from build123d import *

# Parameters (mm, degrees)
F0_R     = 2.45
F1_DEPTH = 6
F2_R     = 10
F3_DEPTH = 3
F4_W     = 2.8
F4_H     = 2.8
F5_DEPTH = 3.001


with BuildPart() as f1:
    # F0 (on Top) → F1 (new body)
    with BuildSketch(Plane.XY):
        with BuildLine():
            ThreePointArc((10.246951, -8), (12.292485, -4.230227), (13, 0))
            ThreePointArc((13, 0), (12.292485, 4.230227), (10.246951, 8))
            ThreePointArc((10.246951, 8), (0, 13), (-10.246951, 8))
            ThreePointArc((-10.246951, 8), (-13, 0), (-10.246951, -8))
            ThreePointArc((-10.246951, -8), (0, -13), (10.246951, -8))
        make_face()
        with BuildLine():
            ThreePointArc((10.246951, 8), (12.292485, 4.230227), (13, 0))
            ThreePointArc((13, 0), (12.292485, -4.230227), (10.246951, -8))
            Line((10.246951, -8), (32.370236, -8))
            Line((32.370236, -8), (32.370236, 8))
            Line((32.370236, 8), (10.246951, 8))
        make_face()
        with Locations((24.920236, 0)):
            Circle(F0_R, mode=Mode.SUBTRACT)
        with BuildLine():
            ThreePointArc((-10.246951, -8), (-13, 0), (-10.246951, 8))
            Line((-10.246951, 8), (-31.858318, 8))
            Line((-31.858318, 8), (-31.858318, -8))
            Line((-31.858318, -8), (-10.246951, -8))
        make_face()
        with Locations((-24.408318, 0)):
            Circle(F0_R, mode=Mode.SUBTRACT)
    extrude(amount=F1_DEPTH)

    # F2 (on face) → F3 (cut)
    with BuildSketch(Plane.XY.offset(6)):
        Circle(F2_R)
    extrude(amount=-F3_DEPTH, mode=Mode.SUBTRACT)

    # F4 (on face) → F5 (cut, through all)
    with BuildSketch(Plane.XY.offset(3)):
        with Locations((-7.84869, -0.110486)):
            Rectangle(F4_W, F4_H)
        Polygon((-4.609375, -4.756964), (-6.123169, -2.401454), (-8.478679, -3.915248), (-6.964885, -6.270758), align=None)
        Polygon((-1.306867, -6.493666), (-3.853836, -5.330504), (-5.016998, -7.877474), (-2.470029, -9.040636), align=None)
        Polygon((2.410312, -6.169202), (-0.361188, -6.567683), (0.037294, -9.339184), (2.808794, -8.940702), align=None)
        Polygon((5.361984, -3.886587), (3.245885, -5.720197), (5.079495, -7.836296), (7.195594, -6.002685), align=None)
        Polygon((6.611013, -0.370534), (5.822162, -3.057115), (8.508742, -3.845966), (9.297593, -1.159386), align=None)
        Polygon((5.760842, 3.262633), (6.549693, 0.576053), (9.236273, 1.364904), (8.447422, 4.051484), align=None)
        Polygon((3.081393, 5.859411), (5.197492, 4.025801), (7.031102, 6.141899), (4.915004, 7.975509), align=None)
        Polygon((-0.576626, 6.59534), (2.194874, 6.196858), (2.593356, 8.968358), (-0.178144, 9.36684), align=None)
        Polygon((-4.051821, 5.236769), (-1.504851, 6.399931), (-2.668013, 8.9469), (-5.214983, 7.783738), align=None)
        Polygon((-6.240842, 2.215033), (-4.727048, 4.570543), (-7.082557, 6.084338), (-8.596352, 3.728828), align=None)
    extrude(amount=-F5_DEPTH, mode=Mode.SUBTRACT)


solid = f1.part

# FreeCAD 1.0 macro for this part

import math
import FreeCAD as App
import Part
import Sketcher
from FreeCAD import Vector
Q = App.Units.Quantity

doc = App.newDocument("Part")
params = doc.addObject("Spreadsheet::Sheet", "Params")
for row, (alias, value) in enumerate([
    ("sketch1_radius", "13 mm"),
    ("sketch1_diameter", "4.9 mm"),
    ("sketch1_height", "16 mm"),
    ("pad1_length", "6 mm"),
    ("sketch2_diameter", "20 mm"),
    ("pocket1_length", "3 mm"),
    ("sketch3_width", "2.8 mm"),
    ("sketch3_length", "2.8 mm"),
], start=1):
    params.set(f"A{row}", alias)
    params.set(f"B{row}", "=" + value)
    params.setAlias(f"B{row}", alias)

body = doc.addObject("PartDesign::Body", "Body")

sketch1 = body.newObject("Sketcher::SketchObject", "Sketch")
sketch1.AttachmentSupport = (doc.getObject("XY_Plane"), [""])
sketch1.MapMode = "FlatFace"
sketch1.addGeometry(Part.ArcOfCircle(Part.Circle(Vector(0, 0, 0), Vector(0, 0, 1), 13), math.radians(38), math.radians(142)), False)
sketch1.addGeometry(Part.LineSegment(Vector(-10.2, 8, 0), Vector(-31.9, 8, 0)), False)
sketch1.addGeometry(Part.LineSegment(Vector(-31.9, 8, 0), Vector(-31.9, -8, 0)), False)
sketch1.addGeometry(Part.LineSegment(Vector(-31.9, -8, 0), Vector(-10.2, -8, 0)), False)
sketch1.addGeometry(Part.ArcOfCircle(Part.Circle(Vector(0, 0, 0), Vector(0, 0, 1), 13), math.radians(-142), math.radians(-38)), False)
sketch1.addGeometry(Part.LineSegment(Vector(10.2, -8, 0), Vector(32.4, -8, 0)), False)
sketch1.addGeometry(Part.LineSegment(Vector(32.4, -8, 0), Vector(32.4, 8, 0)), False)
sketch1.addGeometry(Part.LineSegment(Vector(32.4, 8, 0), Vector(10.2, 8, 0)), False)
sketch1.addGeometry(Part.Circle(Vector(-24.4, 0, 0), Vector(0, 0, 1), 2.5), False)
sketch1.addGeometry(Part.Circle(Vector(24.9, 0, 0), Vector(0, 0, 1), 2.5), False)
sketch1.addConstraint(Sketcher.Constraint("Coincident", 0, 2, 1, 1))
sketch1.addConstraint(Sketcher.Constraint("Coincident", 1, 2, 2, 1))
sketch1.addConstraint(Sketcher.Constraint("Coincident", 2, 2, 3, 1))
sketch1.addConstraint(Sketcher.Constraint("Coincident", 3, 2, 4, 1))
sketch1.addConstraint(Sketcher.Constraint("Coincident", 4, 2, 5, 1))
sketch1.addConstraint(Sketcher.Constraint("Coincident", 5, 2, 6, 1))
sketch1.addConstraint(Sketcher.Constraint("Coincident", 6, 2, 7, 1))
sketch1.addConstraint(Sketcher.Constraint("Coincident", 7, 2, 0, 1))
sketch1.addConstraint(Sketcher.Constraint("Horizontal", 1))
sketch1.addConstraint(Sketcher.Constraint("Vertical", 2))
sketch1.addConstraint(Sketcher.Constraint("Horizontal", 3))
sketch1.addConstraint(Sketcher.Constraint("Horizontal", 5))
sketch1.addConstraint(Sketcher.Constraint("Vertical", 6))
sketch1.addConstraint(Sketcher.Constraint("Horizontal", 7))
sketch1.addConstraint(Sketcher.Constraint("Coincident", 0, 3, -1, 1))
sketch1.addConstraint(Sketcher.Constraint("Coincident", 4, 3, -1, 1))
sketch1.addConstraint(Sketcher.Constraint("Equal", 0, 4))
sketch1.addConstraint(Sketcher.Constraint("Equal", 8, 9))
sketch1.addConstraint(Sketcher.Constraint("PointOnObject", 8, 3, -1))
sketch1.addConstraint(Sketcher.Constraint("PointOnObject", 9, 3, -1))
sketch1.addConstraint(Sketcher.Constraint("Horizontal", 3, 2, 4, 2))
sketch1.addConstraint(Sketcher.Constraint("Horizontal", 1, 2, 6, 2))
sketch1.addConstraint(Sketcher.Constraint("Vertical", 0, 2, 3, 2))
sketch1.addConstraint(Sketcher.Constraint("Radius", 0, Q("13 mm")))
sketch1.addConstraint(Sketcher.Constraint("Diameter", 8, Q("4.9 mm")))
sketch1.addConstraint(Sketcher.Constraint("DistanceY", 2, 2, 2, 1, Q("16 mm")))
sketch1.addConstraint(Sketcher.Constraint("DistanceX", 1, 2, 8, 3, Q("7.45 mm")))
sketch1.addConstraint(Sketcher.Constraint("DistanceX", 9, 3, 5, 2, Q("7.45 mm")))
sketch1.addConstraint(Sketcher.Constraint("DistanceX", 1, 2, 1, 1, Q("21.611367 mm")))
sketch1.addConstraint(Sketcher.Constraint("DistanceX", 5, 1, 5, 2, Q("22.123285 mm")))
sketch1.setExpression("Constraints[23]", "Params.sketch1_radius")
sketch1.setExpression("Constraints[24]", "Params.sketch1_diameter")
sketch1.setExpression("Constraints[25]", "Params.sketch1_height")
pad1 = body.newObject("PartDesign::Pad", "Pad")
pad1.Profile = sketch1
pad1.setExpression("Length", "Params.pad1_length")

sketch2 = body.newObject("Sketcher::SketchObject", "Sketch001")
sketch2.AttachmentSupport = (doc.getObject("XY_Plane"), [""])
sketch2.MapMode = "FlatFace"
sketch2.AttachmentOffset = App.Placement(Vector(0, 0, 6), App.Rotation())
sketch2.addGeometry(Part.Circle(Vector(0, 0, 0), Vector(0, 0, 1), 10), False)
sketch2.addConstraint(Sketcher.Constraint("Coincident", 0, 3, -1, 1))
sketch2.addConstraint(Sketcher.Constraint("Diameter", 0, Q("20 mm")))
sketch2.setExpression("Constraints[1]", "Params.sketch2_diameter")
pocket1 = body.newObject("PartDesign::Pocket", "Pocket")
pocket1.Profile = sketch2
pocket1.setExpression("Length", "Params.pocket1_length")

sketch3 = body.newObject("Sketcher::SketchObject", "Sketch002")
sketch3.AttachmentSupport = (doc.getObject("XY_Plane"), [""])
sketch3.MapMode = "FlatFace"
sketch3.AttachmentOffset = App.Placement(Vector(0, 0, 3), App.Rotation())
sketch3.addGeometry(Part.LineSegment(Vector(-9.2, 1.3, 0), Vector(-9.2, -1.5, 0)), False)
sketch3.addGeometry(Part.LineSegment(Vector(-9.2, -1.5, 0), Vector(-6.4, -1.5, 0)), False)
sketch3.addGeometry(Part.LineSegment(Vector(-6.4, -1.5, 0), Vector(-6.4, 1.3, 0)), False)
sketch3.addGeometry(Part.LineSegment(Vector(-6.4, 1.3, 0), Vector(-9.2, 1.3, 0)), False)
sketch3.addGeometry(Part.LineSegment(Vector(-4.6, -4.8, 0), Vector(-6.1, -2.4, 0)), False)
sketch3.addGeometry(Part.LineSegment(Vector(-6.1, -2.4, 0), Vector(-8.5, -3.9, 0)), False)
sketch3.addGeometry(Part.LineSegment(Vector(-8.5, -3.9, 0), Vector(-7, -6.3, 0)), False)
sketch3.addGeometry(Part.LineSegment(Vector(-7, -6.3, 0), Vector(-4.6, -4.8, 0)), False)
sketch3.addGeometry(Part.LineSegment(Vector(-1.3, -6.5, 0), Vector(-3.9, -5.3, 0)), False)
sketch3.addGeometry(Part.LineSegment(Vector(-3.9, -5.3, 0), Vector(-5, -7.9, 0)), False)
sketch3.addGeometry(Part.LineSegment(Vector(-5, -7.9, 0), Vector(-2.5, -9, 0)), False)
sketch3.addGeometry(Part.LineSegment(Vector(-2.5, -9, 0), Vector(-1.3, -6.5, 0)), False)
sketch3.addGeometry(Part.LineSegment(Vector(2.4, -6.2, 0), Vector(-0.4, -6.6, 0)), False)
sketch3.addGeometry(Part.LineSegment(Vector(-0.4, -6.6, 0), Vector(0, -9.3, 0)), False)
sketch3.addGeometry(Part.LineSegment(Vector(0, -9.3, 0), Vector(2.8, -8.9, 0)), False)
sketch3.addGeometry(Part.LineSegment(Vector(2.8, -8.9, 0), Vector(2.4, -6.2, 0)), False)
sketch3.addGeometry(Part.LineSegment(Vector(5.4, -3.9, 0), Vector(3.2, -5.7, 0)), False)
sketch3.addGeometry(Part.LineSegment(Vector(3.2, -5.7, 0), Vector(5.1, -7.8, 0)), False)
sketch3.addGeometry(Part.LineSegment(Vector(5.1, -7.8, 0), Vector(7.2, -6, 0)), False)
sketch3.addGeometry(Part.LineSegment(Vector(7.2, -6, 0), Vector(5.4, -3.9, 0)), False)
sketch3.addGeometry(Part.LineSegment(Vector(6.6, -0.4, 0), Vector(5.8, -3.1, 0)), False)
sketch3.addGeometry(Part.LineSegment(Vector(5.8, -3.1, 0), Vector(8.5, -3.8, 0)), False)
sketch3.addGeometry(Part.LineSegment(Vector(8.5, -3.8, 0), Vector(9.3, -1.2, 0)), False)
sketch3.addGeometry(Part.LineSegment(Vector(9.3, -1.2, 0), Vector(6.6, -0.4, 0)), False)
sketch3.addGeometry(Part.LineSegment(Vector(5.8, 3.3, 0), Vector(6.5, 0.6, 0)), False)
sketch3.addGeometry(Part.LineSegment(Vector(6.5, 0.6, 0), Vector(9.2, 1.4, 0)), False)
sketch3.addGeometry(Part.LineSegment(Vector(9.2, 1.4, 0), Vector(8.4, 4.1, 0)), False)
sketch3.addGeometry(Part.LineSegment(Vector(8.4, 4.1, 0), Vector(5.8, 3.3, 0)), False)
sketch3.addGeometry(Part.LineSegment(Vector(3.1, 5.9, 0), Vector(5.2, 4, 0)), False)
sketch3.addGeometry(Part.LineSegment(Vector(5.2, 4, 0), Vector(7, 6.1, 0)), False)
sketch3.addGeometry(Part.LineSegment(Vector(7, 6.1, 0), Vector(4.9, 8, 0)), False)
sketch3.addGeometry(Part.LineSegment(Vector(4.9, 8, 0), Vector(3.1, 5.9, 0)), False)
sketch3.addGeometry(Part.LineSegment(Vector(-0.6, 6.6, 0), Vector(2.2, 6.2, 0)), False)
sketch3.addGeometry(Part.LineSegment(Vector(2.2, 6.2, 0), Vector(2.6, 9, 0)), False)
sketch3.addGeometry(Part.LineSegment(Vector(2.6, 9, 0), Vector(-0.2, 9.4, 0)), False)
sketch3.addGeometry(Part.LineSegment(Vector(-0.2, 9.4, 0), Vector(-0.6, 6.6, 0)), False)
sketch3.addGeometry(Part.LineSegment(Vector(-4.1, 5.2, 0), Vector(-1.5, 6.4, 0)), False)
sketch3.addGeometry(Part.LineSegment(Vector(-1.5, 6.4, 0), Vector(-2.7, 8.9, 0)), False)
sketch3.addGeometry(Part.LineSegment(Vector(-2.7, 8.9, 0), Vector(-5.2, 7.8, 0)), False)
sketch3.addGeometry(Part.LineSegment(Vector(-5.2, 7.8, 0), Vector(-4.1, 5.2, 0)), False)
sketch3.addGeometry(Part.LineSegment(Vector(-6.2, 2.2, 0), Vector(-4.7, 4.6, 0)), False)
sketch3.addGeometry(Part.LineSegment(Vector(-4.7, 4.6, 0), Vector(-7.1, 6.1, 0)), False)
sketch3.addGeometry(Part.LineSegment(Vector(-7.1, 6.1, 0), Vector(-8.6, 3.7, 0)), False)
sketch3.addGeometry(Part.LineSegment(Vector(-8.6, 3.7, 0), Vector(-6.2, 2.2, 0)), False)
sketch3.addConstraint(Sketcher.Constraint("Coincident", 0, 2, 1, 1))
sketch3.addConstraint(Sketcher.Constraint("Coincident", 1, 2, 2, 1))
sketch3.addConstraint(Sketcher.Constraint("Coincident", 2, 2, 3, 1))
sketch3.addConstraint(Sketcher.Constraint("Coincident", 3, 2, 0, 1))
sketch3.addConstraint(Sketcher.Constraint("Coincident", 4, 2, 5, 1))
sketch3.addConstraint(Sketcher.Constraint("Coincident", 5, 2, 6, 1))
sketch3.addConstraint(Sketcher.Constraint("Coincident", 6, 2, 7, 1))
sketch3.addConstraint(Sketcher.Constraint("Coincident", 7, 2, 4, 1))
sketch3.addConstraint(Sketcher.Constraint("Coincident", 8, 2, 9, 1))
sketch3.addConstraint(Sketcher.Constraint("Coincident", 9, 2, 10, 1))
sketch3.addConstraint(Sketcher.Constraint("Coincident", 10, 2, 11, 1))
sketch3.addConstraint(Sketcher.Constraint("Coincident", 11, 2, 8, 1))
sketch3.addConstraint(Sketcher.Constraint("Coincident", 12, 2, 13, 1))
sketch3.addConstraint(Sketcher.Constraint("Coincident", 13, 2, 14, 1))
sketch3.addConstraint(Sketcher.Constraint("Coincident", 14, 2, 15, 1))
sketch3.addConstraint(Sketcher.Constraint("Coincident", 15, 2, 12, 1))
sketch3.addConstraint(Sketcher.Constraint("Coincident", 16, 2, 17, 1))
sketch3.addConstraint(Sketcher.Constraint("Coincident", 17, 2, 18, 1))
sketch3.addConstraint(Sketcher.Constraint("Coincident", 18, 2, 19, 1))
sketch3.addConstraint(Sketcher.Constraint("Coincident", 19, 2, 16, 1))
sketch3.addConstraint(Sketcher.Constraint("Coincident", 20, 2, 21, 1))
sketch3.addConstraint(Sketcher.Constraint("Coincident", 21, 2, 22, 1))
sketch3.addConstraint(Sketcher.Constraint("Coincident", 22, 2, 23, 1))
sketch3.addConstraint(Sketcher.Constraint("Coincident", 23, 2, 20, 1))
sketch3.addConstraint(Sketcher.Constraint("Coincident", 24, 2, 25, 1))
sketch3.addConstraint(Sketcher.Constraint("Coincident", 25, 2, 26, 1))
sketch3.addConstraint(Sketcher.Constraint("Coincident", 26, 2, 27, 1))
sketch3.addConstraint(Sketcher.Constraint("Coincident", 27, 2, 24, 1))
sketch3.addConstraint(Sketcher.Constraint("Coincident", 28, 2, 29, 1))
sketch3.addConstraint(Sketcher.Constraint("Coincident", 29, 2, 30, 1))
sketch3.addConstraint(Sketcher.Constraint("Coincident", 30, 2, 31, 1))
sketch3.addConstraint(Sketcher.Constraint("Coincident", 31, 2, 28, 1))
sketch3.addConstraint(Sketcher.Constraint("Coincident", 32, 2, 33, 1))
sketch3.addConstraint(Sketcher.Constraint("Coincident", 33, 2, 34, 1))
sketch3.addConstraint(Sketcher.Constraint("Coincident", 34, 2, 35, 1))
sketch3.addConstraint(Sketcher.Constraint("Coincident", 35, 2, 32, 1))
sketch3.addConstraint(Sketcher.Constraint("Coincident", 36, 2, 37, 1))
sketch3.addConstraint(Sketcher.Constraint("Coincident", 37, 2, 38, 1))
sketch3.addConstraint(Sketcher.Constraint("Coincident", 38, 2, 39, 1))
sketch3.addConstraint(Sketcher.Constraint("Coincident", 39, 2, 36, 1))
sketch3.addConstraint(Sketcher.Constraint("Coincident", 40, 2, 41, 1))
sketch3.addConstraint(Sketcher.Constraint("Coincident", 41, 2, 42, 1))
sketch3.addConstraint(Sketcher.Constraint("Coincident", 42, 2, 43, 1))
sketch3.addConstraint(Sketcher.Constraint("Coincident", 43, 2, 40, 1))
sketch3.addConstraint(Sketcher.Constraint("Vertical", 0))
sketch3.addConstraint(Sketcher.Constraint("Horizontal", 1))
sketch3.addConstraint(Sketcher.Constraint("Vertical", 2))
sketch3.addConstraint(Sketcher.Constraint("Horizontal", 3))
sketch3.addConstraint(Sketcher.Constraint("Perpendicular", 4, 5))
sketch3.addConstraint(Sketcher.Constraint("Perpendicular", 5, 6))
sketch3.addConstraint(Sketcher.Constraint("Perpendicular", 6, 7))
sketch3.addConstraint(Sketcher.Constraint("Perpendicular", 8, 9))
sketch3.addConstraint(Sketcher.Constraint("Perpendicular", 9, 10))
sketch3.addConstraint(Sketcher.Constraint("Perpendicular", 10, 11))
sketch3.addConstraint(Sketcher.Constraint("Perpendicular", 12, 13))
sketch3.addConstraint(Sketcher.Constraint("Perpendicular", 13, 14))
sketch3.addConstraint(Sketcher.Constraint("Perpendicular", 14, 15))
sketch3.addConstraint(Sketcher.Constraint("Perpendicular", 16, 17))
sketch3.addConstraint(Sketcher.Constraint("Perpendicular", 17, 18))
sketch3.addConstraint(Sketcher.Constraint("Perpendicular", 18, 19))
sketch3.addConstraint(Sketcher.Constraint("Perpendicular", 20, 21))
sketch3.addConstraint(Sketcher.Constraint("Perpendicular", 21, 22))
sketch3.addConstraint(Sketcher.Constraint("Perpendicular", 22, 23))
sketch3.addConstraint(Sketcher.Constraint("Perpendicular", 24, 25))
sketch3.addConstraint(Sketcher.Constraint("Perpendicular", 25, 26))
sketch3.addConstraint(Sketcher.Constraint("Perpendicular", 26, 27))
sketch3.addConstraint(Sketcher.Constraint("Perpendicular", 28, 29))
sketch3.addConstraint(Sketcher.Constraint("Perpendicular", 29, 30))
sketch3.addConstraint(Sketcher.Constraint("Perpendicular", 30, 31))
sketch3.addConstraint(Sketcher.Constraint("Perpendicular", 32, 33))
sketch3.addConstraint(Sketcher.Constraint("Perpendicular", 33, 34))
sketch3.addConstraint(Sketcher.Constraint("Perpendicular", 34, 35))
sketch3.addConstraint(Sketcher.Constraint("Perpendicular", 36, 37))
sketch3.addConstraint(Sketcher.Constraint("Perpendicular", 37, 38))
sketch3.addConstraint(Sketcher.Constraint("Perpendicular", 38, 39))
sketch3.addConstraint(Sketcher.Constraint("Perpendicular", 40, 41))
sketch3.addConstraint(Sketcher.Constraint("Perpendicular", 41, 42))
sketch3.addConstraint(Sketcher.Constraint("Perpendicular", 42, 43))
sketch3.addConstraint(Sketcher.Constraint("Equal", 3, 0))
sketch3.addConstraint(Sketcher.Constraint("Equal", 4, 5))
sketch3.addConstraint(Sketcher.Constraint("Equal", 7, 8))
sketch3.addConstraint(Sketcher.Constraint("Equal", 8, 9))
sketch3.addConstraint(Sketcher.Constraint("Equal", 11, 12))
sketch3.addConstraint(Sketcher.Constraint("Equal", 12, 13))
sketch3.addConstraint(Sketcher.Constraint("Equal", 15, 16))
sketch3.addConstraint(Sketcher.Constraint("Equal", 16, 17))
sketch3.addConstraint(Sketcher.Constraint("Equal", 19, 20))
sketch3.addConstraint(Sketcher.Constraint("Equal", 20, 21))
sketch3.addConstraint(Sketcher.Constraint("Equal", 23, 24))
sketch3.addConstraint(Sketcher.Constraint("Equal", 24, 25))
sketch3.addConstraint(Sketcher.Constraint("Equal", 27, 28))
sketch3.addConstraint(Sketcher.Constraint("Equal", 28, 29))
sketch3.addConstraint(Sketcher.Constraint("Equal", 31, 32))
sketch3.addConstraint(Sketcher.Constraint("Equal", 32, 33))
sketch3.addConstraint(Sketcher.Constraint("Equal", 35, 36))
sketch3.addConstraint(Sketcher.Constraint("Equal", 36, 37))
sketch3.addConstraint(Sketcher.Constraint("Equal", 39, 40))
sketch3.addConstraint(Sketcher.Constraint("Equal", 40, 41))
sketch3.addConstraint(Sketcher.Constraint("DistanceX", 1, 1, 1, 2, Q("2.8 mm")))
sketch3.addConstraint(Sketcher.Constraint("Distance", 4, Q("2.8 mm")))
sketch3.addConstraint(Sketcher.Constraint("DistanceY", 12, 2, 18, 2, Q("0.564998 mm")))
sketch3.addConstraint(Sketcher.Constraint("DistanceX", 18, 2, 22, 2, Q("2.101999 mm")))
sketch3.addConstraint(Sketcher.Constraint("DistanceY", -1, 1, 28, 2, Q("4.025801 mm")))
sketch3.addConstraint(Sketcher.Constraint("DistanceX", -1, 1, 29, 2, Q("7.031102 mm")))
sketch3.addConstraint(Sketcher.Constraint("DistanceY", -1, 1, 29, 2, Q("6.141899 mm")))
sketch3.addConstraint(Sketcher.Constraint("DistanceY", -1, 1, 37, 2, Q("8.9469 mm")))
sketch3.addConstraint(Sketcher.Constraint("DistanceY", 13, 2, 12, 2, Q("2.771501 mm")))
sketch3.addConstraint(Sketcher.Constraint("DistanceX", 14, 2, 17, 2, Q("2.270701 mm")))
sketch3.addConstraint(Sketcher.Constraint("DistanceY", 17, 2, 16, 2, Q("2.116099 mm")))
sketch3.addConstraint(Sketcher.Constraint("DistanceY", 19, 2, 22, 2, Q("2.727201 mm")))
sketch3.addConstraint(Sketcher.Constraint("DistanceX", 24, 2, 22, 2, Q("2.7479 mm")))
sketch3.addConstraint(Sketcher.Constraint("DistanceY", 20, 2, 26, 2, Q("7.108599 mm")))
sketch3.addConstraint(Sketcher.Constraint("DistanceX", 28, 2, 24, 2, Q("1.352201 mm")))
sketch3.addConstraint(Sketcher.Constraint("DistanceY", 32, 2, 33, 2, Q("2.7715 mm")))
sketch3.addConstraint(Sketcher.Constraint("DistanceY", 41, 2, 38, 2, Q("1.6994 mm")))
sketch3.addConstraint(Sketcher.Constraint("DistanceX", 0, 2, -1, 1, Q("9.24869 mm")))
sketch3.addConstraint(Sketcher.Constraint("DistanceX", 4, 2, -1, 1, Q("6.123169 mm")))
sketch3.addConstraint(Sketcher.Constraint("DistanceX", 5, 2, -1, 1, Q("8.478679 mm")))
sketch3.addConstraint(Sketcher.Constraint("DistanceY", 5, 2, -1, 1, Q("3.915248 mm")))
sketch3.addConstraint(Sketcher.Constraint("DistanceX", 10, 2, -1, 1, Q("2.470029 mm")))
sketch3.addConstraint(Sketcher.Constraint("DistanceX", -1, 1, 20, 2, Q("5.822162 mm")))
sketch3.addConstraint(Sketcher.Constraint("DistanceY", -1, 1, 34, 2, Q("9.36684 mm")))
sketch3.addConstraint(Sketcher.Constraint("DistanceX", 36, 2, -1, 1, Q("1.504851 mm")))
sketch3.addConstraint(Sketcher.Constraint("DistanceY", -1, 1, 36, 2, Q("6.399931 mm")))
sketch3.addConstraint(Sketcher.Constraint("DistanceY", -1, 1, 42, 2, Q("3.728828 mm")))
sketch3.addConstraint(Sketcher.Constraint("DistanceX", 43, 2, -1, 1, Q("6.240842 mm")))
sketch3.addConstraint(Sketcher.Constraint("DistanceY", 4, 2, 1, 2, Q("0.890968 mm")))
sketch3.addConstraint(Sketcher.Constraint("DistanceX", 7, 2, 8, 2, Q("0.755539 mm")))
sketch3.addConstraint(Sketcher.Constraint("DistanceY", 8, 2, 7, 2, Q("0.57354 mm")))
sketch3.addConstraint(Sketcher.Constraint("DistanceY", 12, 2, 8, 2, Q("1.237179 mm")))
sketch3.addConstraint(Sketcher.Constraint("DistanceY", 22, 2, 24, 2, Q("1.735439 mm")))
sketch3.addConstraint(Sketcher.Constraint("DistanceX", 32, 2, 31, 2, Q("0.886519 mm")))
sketch3.setExpression("Constraints[98]", "Params.sketch3_width")
sketch3.setExpression("Constraints[99]", "Params.sketch3_length")
pocket2 = body.newObject("PartDesign::Pocket", "Pocket001")
pocket2.Profile = sketch3
pocket2.Type = "ThroughAll"

doc.recompute()
